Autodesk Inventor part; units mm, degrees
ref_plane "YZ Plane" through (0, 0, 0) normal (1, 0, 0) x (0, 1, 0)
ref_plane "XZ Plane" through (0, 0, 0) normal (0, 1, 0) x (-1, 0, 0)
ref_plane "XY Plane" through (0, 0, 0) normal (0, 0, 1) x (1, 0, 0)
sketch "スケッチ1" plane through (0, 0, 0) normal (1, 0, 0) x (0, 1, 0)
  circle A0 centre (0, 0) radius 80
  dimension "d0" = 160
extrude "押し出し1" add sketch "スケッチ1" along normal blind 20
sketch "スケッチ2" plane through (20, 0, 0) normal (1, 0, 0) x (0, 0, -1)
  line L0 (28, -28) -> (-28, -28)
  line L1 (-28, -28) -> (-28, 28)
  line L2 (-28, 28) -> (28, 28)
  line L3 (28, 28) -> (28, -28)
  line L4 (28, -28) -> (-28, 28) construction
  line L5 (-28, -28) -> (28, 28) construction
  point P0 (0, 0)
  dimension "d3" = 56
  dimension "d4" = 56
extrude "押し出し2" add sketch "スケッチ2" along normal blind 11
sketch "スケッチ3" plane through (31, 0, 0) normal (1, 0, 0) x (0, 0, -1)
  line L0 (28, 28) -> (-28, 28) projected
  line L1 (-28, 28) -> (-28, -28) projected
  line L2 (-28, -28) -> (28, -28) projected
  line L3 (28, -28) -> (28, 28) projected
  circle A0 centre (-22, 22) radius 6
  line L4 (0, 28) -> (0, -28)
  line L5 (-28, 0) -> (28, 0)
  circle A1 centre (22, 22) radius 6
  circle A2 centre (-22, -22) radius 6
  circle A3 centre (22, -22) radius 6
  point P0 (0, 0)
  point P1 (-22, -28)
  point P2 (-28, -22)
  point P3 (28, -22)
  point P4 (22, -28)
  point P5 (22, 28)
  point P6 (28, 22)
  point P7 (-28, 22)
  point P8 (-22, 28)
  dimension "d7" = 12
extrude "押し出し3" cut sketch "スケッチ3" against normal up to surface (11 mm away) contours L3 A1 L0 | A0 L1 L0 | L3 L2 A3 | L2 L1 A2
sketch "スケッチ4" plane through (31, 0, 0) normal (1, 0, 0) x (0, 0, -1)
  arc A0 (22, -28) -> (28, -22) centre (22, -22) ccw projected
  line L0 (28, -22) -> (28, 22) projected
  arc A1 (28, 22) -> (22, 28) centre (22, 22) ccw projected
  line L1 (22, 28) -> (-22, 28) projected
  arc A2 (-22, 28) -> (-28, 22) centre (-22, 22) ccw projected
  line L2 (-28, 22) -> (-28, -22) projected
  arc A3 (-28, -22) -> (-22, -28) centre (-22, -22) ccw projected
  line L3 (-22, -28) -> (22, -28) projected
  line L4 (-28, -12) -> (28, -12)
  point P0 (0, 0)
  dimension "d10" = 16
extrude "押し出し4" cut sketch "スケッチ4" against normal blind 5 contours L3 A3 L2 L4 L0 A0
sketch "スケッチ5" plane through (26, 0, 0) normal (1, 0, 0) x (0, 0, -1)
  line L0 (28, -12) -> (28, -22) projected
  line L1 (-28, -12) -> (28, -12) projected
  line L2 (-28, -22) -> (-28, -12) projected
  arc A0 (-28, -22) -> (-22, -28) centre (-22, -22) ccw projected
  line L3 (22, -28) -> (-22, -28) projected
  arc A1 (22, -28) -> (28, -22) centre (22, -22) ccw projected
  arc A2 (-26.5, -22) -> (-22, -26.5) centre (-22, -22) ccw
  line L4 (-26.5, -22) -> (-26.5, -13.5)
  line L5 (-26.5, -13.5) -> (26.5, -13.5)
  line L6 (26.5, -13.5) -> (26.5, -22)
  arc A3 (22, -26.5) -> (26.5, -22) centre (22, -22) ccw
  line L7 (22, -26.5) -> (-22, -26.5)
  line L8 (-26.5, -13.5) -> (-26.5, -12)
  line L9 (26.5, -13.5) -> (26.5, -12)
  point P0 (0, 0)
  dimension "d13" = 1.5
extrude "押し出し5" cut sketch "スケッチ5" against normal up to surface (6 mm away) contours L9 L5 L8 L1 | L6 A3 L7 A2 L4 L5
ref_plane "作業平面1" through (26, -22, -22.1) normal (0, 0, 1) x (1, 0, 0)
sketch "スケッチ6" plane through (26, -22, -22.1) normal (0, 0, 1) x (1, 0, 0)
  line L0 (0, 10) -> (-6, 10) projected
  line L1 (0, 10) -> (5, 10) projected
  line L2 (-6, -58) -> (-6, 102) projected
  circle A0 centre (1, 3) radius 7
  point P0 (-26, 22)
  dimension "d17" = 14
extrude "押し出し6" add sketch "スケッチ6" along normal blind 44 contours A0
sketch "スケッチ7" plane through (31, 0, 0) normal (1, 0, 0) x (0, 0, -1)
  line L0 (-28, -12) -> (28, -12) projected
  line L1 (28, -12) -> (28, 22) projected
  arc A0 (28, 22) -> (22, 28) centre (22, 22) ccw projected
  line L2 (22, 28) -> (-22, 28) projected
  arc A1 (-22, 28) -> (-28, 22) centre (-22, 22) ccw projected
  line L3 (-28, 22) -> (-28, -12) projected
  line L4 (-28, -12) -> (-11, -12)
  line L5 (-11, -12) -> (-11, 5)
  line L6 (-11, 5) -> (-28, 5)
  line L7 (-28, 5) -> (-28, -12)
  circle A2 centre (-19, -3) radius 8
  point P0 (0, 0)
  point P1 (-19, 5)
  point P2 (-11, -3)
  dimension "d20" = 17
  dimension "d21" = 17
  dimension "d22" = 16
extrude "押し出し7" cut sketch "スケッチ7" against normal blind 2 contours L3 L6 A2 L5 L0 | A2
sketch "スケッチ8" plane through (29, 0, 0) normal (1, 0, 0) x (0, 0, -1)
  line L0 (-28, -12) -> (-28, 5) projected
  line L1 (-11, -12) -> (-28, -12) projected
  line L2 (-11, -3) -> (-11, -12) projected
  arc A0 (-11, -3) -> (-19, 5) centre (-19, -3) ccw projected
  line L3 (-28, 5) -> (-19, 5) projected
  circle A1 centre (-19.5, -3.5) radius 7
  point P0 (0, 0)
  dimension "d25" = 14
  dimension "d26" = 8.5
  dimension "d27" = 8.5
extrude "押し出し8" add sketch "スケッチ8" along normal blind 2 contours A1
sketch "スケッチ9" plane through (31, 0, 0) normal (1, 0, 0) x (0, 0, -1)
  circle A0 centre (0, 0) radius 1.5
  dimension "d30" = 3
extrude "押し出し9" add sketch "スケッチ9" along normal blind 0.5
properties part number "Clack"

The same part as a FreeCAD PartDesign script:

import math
import FreeCAD as App
import Part
import Sketcher

V = App.Vector

doc = App.newDocument("Part")
body = doc.addObject("PartDesign::Body", "Body")
body.AllowCompound = True

# Sketch on YZ plane
sketch1 = body.newObject("Sketcher::SketchObject", "Sketch")
sketch1.AttachmentSupport = (doc.getObject("YZ_Plane"), [""])
sketch1.MapMode = "FlatFace"
sketch1.addGeometry(Part.Circle(V(0, 0, 0), V(0, 0, 1), 80), False)
sketch1.addConstraint([
    Sketcher.Constraint("Coincident", 0, 3, -1, 1),
    Sketcher.Constraint("Diameter", 0, 160.0),
])
pad1 = body.newObject("PartDesign::Pad", "Pad")
pad1.Profile = sketch1
pad1.Length = 20

# Sketch on YZ plane
sketch2 = body.newObject("Sketcher::SketchObject", "Sketch001")
sketch2.AttachmentSupport = (doc.getObject("YZ_Plane"), [""])
sketch2.MapMode = "FlatFace"
sketch2.AttachmentOffset = App.Placement(V(0, 0, 20), App.Rotation())
sketch2.addGeometry([
    Part.LineSegment(V(-28, 28, 0), V(-28, -28, 0)),
    Part.LineSegment(V(-28, -28, 0), V(28, -28, 0)),
    Part.LineSegment(V(28, -28, 0), V(28, 28, 0)),
    Part.LineSegment(V(28, 28, 0), V(-28, 28, 0)),
], False)
sketch2.addConstraint([
    Sketcher.Constraint("Coincident", 0, 2, 1, 1),
    Sketcher.Constraint("Coincident", 1, 2, 2, 1),
    Sketcher.Constraint("Coincident", 2, 2, 3, 1),
    Sketcher.Constraint("Coincident", 3, 2, 0, 1),
    Sketcher.Constraint("Vertical", 0),
    Sketcher.Constraint("Horizontal", 1),
    Sketcher.Constraint("Vertical", 2),
    Sketcher.Constraint("Horizontal", 3),
    Sketcher.Constraint("Symmetric", 0, 2, 2, 2, -1, 1),
    Sketcher.Constraint("Equal", 3, 0),
    Sketcher.Constraint("DistanceX", 1, 1, 1, 2, 56.0),
])
pad2 = body.newObject("PartDesign::Pad", "Pad001")
pad2.Profile = sketch2
pad2.Length = 11

# Sketch on YZ plane
sketch3 = body.newObject("Sketcher::SketchObject", "Sketch002")
sketch3.AttachmentSupport = (doc.getObject("YZ_Plane"), [""])
sketch3.MapMode = "FlatFace"
sketch3.AttachmentOffset = App.Placement(V(0, 0, 31), App.Rotation())
sketch3.addGeometry([
    Part.LineSegment(V(22, -28, 0), V(28, -28, 0)),  # 0
    Part.LineSegment(V(28, -28, 0), V(28, -22, 0)),  # 1
    Part.ArcOfCircle(Part.Circle(V(22, -22, 0), V(0, 0, 1), 6), math.radians(-90), math.radians(0)),  # 2
    Part.ArcOfCircle(Part.Circle(V(22, 22, 0), V(0, 0, 1), 6), math.radians(0), math.radians(90)),  # 3
    Part.LineSegment(V(28, 22, 0), V(28, 28, 0)),  # 4
    Part.LineSegment(V(28, 28, 0), V(22, 28, 0)),  # 5
    Part.LineSegment(V(-28, -28, 0), V(-22, -28, 0)),  # 6
    Part.ArcOfCircle(Part.Circle(V(-22, -22, 0), V(0, 0, 1), 6), math.radians(180), math.radians(270)),  # 7
    Part.LineSegment(V(-28, -22, 0), V(-28, -28, 0)),  # 8
    Part.LineSegment(V(-28, 28, 0), V(-28, 22, 0)),  # 9
    Part.ArcOfCircle(Part.Circle(V(-22, 22, 0), V(0, 0, 1), 6), math.radians(90), math.radians(180)),  # 10
    Part.LineSegment(V(-22, 28, 0), V(-28, 28, 0)),  # 11
], False)
sketch3.addConstraint([
    Sketcher.Constraint("Coincident", 0, 2, 1, 1),
    Sketcher.Constraint("Tangent", 1, 2, 2, 2),
    Sketcher.Constraint("Tangent", 2, 1, 0, 1),
    Sketcher.Constraint("Tangent", 3, 1, 4, 1),
    Sketcher.Constraint("Coincident", 4, 2, 5, 1),
    Sketcher.Constraint("Tangent", 5, 2, 3, 2),
    Sketcher.Constraint("Tangent", 6, 2, 7, 2),
    Sketcher.Constraint("Tangent", 7, 1, 8, 1),
    Sketcher.Constraint("Coincident", 8, 2, 6, 1),
    Sketcher.Constraint("Tangent", 9, 2, 10, 2),
    Sketcher.Constraint("Tangent", 10, 1, 11, 1),
    Sketcher.Constraint("Coincident", 11, 2, 9, 1),
    Sketcher.Constraint("Horizontal", 0),
    Sketcher.Constraint("Vertical", 1),
    Sketcher.Constraint("Vertical", 4),
    Sketcher.Constraint("Horizontal", 5),
    Sketcher.Constraint("Horizontal", 6),
    Sketcher.Constraint("Vertical", 8),
    Sketcher.Constraint("Vertical", 9),
    Sketcher.Constraint("Horizontal", 11),
    Sketcher.Constraint("Equal", 2, 3),
    Sketcher.Constraint("Equal", 3, 7),
    Sketcher.Constraint("Equal", 7, 10),
    Sketcher.Constraint("Symmetric", 3, 3, 7, 3, -1, 1),
    Sketcher.Constraint("Symmetric", 2, 3, 10, 3, -1, 1),
    Sketcher.Constraint("Symmetric", 2, 3, 7, 3, -2),
    Sketcher.Constraint("Radius", 2, 6.0),
    Sketcher.Constraint("DistanceX", -1, 1, 2, 3, 22.0),
    Sketcher.Constraint("DistanceY", 2, 3, -1, 1, 22.0),
])
pocket1 = body.newObject("PartDesign::Pocket", "Pocket")
pocket1.Profile = sketch3
pocket1.Length = 11

# Sketch on YZ plane
sketch4 = body.newObject("Sketcher::SketchObject", "Sketch003")
sketch4.AttachmentSupport = (doc.getObject("YZ_Plane"), [""])
sketch4.MapMode = "FlatFace"
sketch4.AttachmentOffset = App.Placement(V(0, 0, 31), App.Rotation())
sketch4.addGeometry([
    Part.LineSegment(V(-28, 22, 0), V(-28, -22, 0)),  # 0
    Part.ArcOfCircle(Part.Circle(V(-22, -22, 0), V(0, 0, 1), 6), math.radians(180), math.radians(270)),  # 1
    Part.LineSegment(V(-22, -28, 0), V(-12, -28, 0)),  # 2
    Part.LineSegment(V(-12, -28, 0), V(-12, 28, 0)),  # 3
    Part.LineSegment(V(-12, 28, 0), V(-22, 28, 0)),  # 4
    Part.ArcOfCircle(Part.Circle(V(-22, 22, 0), V(0, 0, 1), 6), math.radians(90), math.radians(180)),  # 5
], False)
sketch4.addConstraint([
    Sketcher.Constraint("Tangent", 0, 2, 1, 1),
    Sketcher.Constraint("Tangent", 1, 2, 2, 1),
    Sketcher.Constraint("Coincident", 2, 2, 3, 1),
    Sketcher.Constraint("Coincident", 3, 2, 4, 1),
    Sketcher.Constraint("Tangent", 4, 2, 5, 1),
    Sketcher.Constraint("Tangent", 5, 2, 0, 1),
    Sketcher.Constraint("Vertical", 0),
    Sketcher.Constraint("Horizontal", 2),
    Sketcher.Constraint("Vertical", 3),
    Sketcher.Constraint("Horizontal", 4),
    Sketcher.Constraint("Equal", 1, 5),
    Sketcher.Constraint("Radius", 1, 6.0),
    Sketcher.Constraint("DistanceX", 0, 2, 2, 2, 16.0),
    Sketcher.Constraint("DistanceY", 0, 2, 0, 1, 44.0),
    Sketcher.Constraint("DistanceX", 1, 3, -1, 1, 22.0),
    Sketcher.Constraint("DistanceY", 1, 3, -1, 1, 22.0),
])
pocket2 = body.newObject("PartDesign::Pocket", "Pocket001")
pocket2.Profile = sketch4
pocket2.Length = 5

# Sketch on YZ plane
sketch5 = body.newObject("Sketcher::SketchObject", "Sketch004")
sketch5.AttachmentSupport = (doc.getObject("YZ_Plane"), [""])
sketch5.MapMode = "FlatFace"
sketch5.AttachmentOffset = App.Placement(V(0, 0, 26), App.Rotation())
sketch5.addGeometry([
    Part.LineSegment(V(-12, -26.5, 0), V(-12, 26.5, 0)),  # 0
    Part.LineSegment(V(-12, 26.5, 0), V(-22, 26.5, 0)),  # 1
    Part.ArcOfCircle(Part.Circle(V(-22, 22, 0), V(0, 0, 1), 4.5), math.radians(90), math.radians(180)),  # 2
    Part.LineSegment(V(-26.5, 22, 0), V(-26.5, -22, 0)),  # 3
    Part.ArcOfCircle(Part.Circle(V(-22, -22, 0), V(0, 0, 1), 4.5), math.radians(180), math.radians(270)),  # 4
    Part.LineSegment(V(-22, -26.5, 0), V(-12, -26.5, 0)),  # 5
], False)
sketch5.addConstraint([
    Sketcher.Constraint("Coincident", 0, 2, 1, 1),
    Sketcher.Constraint("Tangent", 1, 2, 2, 1),
    Sketcher.Constraint("Tangent", 2, 2, 3, 1),
    Sketcher.Constraint("Tangent", 3, 2, 4, 1),
    Sketcher.Constraint("Tangent", 4, 2, 5, 1),
    Sketcher.Constraint("Coincident", 5, 2, 0, 1),
    Sketcher.Constraint("Vertical", 0),
    Sketcher.Constraint("Horizontal", 1),
    Sketcher.Constraint("Vertical", 3),
    Sketcher.Constraint("Horizontal", 5),
    Sketcher.Constraint("Equal", 2, 4),
    Sketcher.Constraint("Radius", 2, 4.5),
    Sketcher.Constraint("DistanceX", 1, 2, 1, 1, 10.0),
    Sketcher.Constraint("DistanceY", 0, 1, 0, 2, 53.0),
    Sketcher.Constraint("DistanceX", 2, 3, -1, 1, 22.0),
    Sketcher.Constraint("DistanceY", -1, 1, 2, 3, 22.0),
])
pocket3 = body.newObject("PartDesign::Pocket", "Pocket002")
pocket3.Profile = sketch5
pocket3.Length = 6

# Sketch on XY plane
sketch6 = body.newObject("Sketcher::SketchObject", "Sketch005")
sketch6.AttachmentSupport = (doc.getObject("XY_Plane"), [""])
sketch6.MapMode = "FlatFace"
sketch6.AttachmentOffset = App.Placement(V(0, 0, -22.1), App.Rotation())
sketch6.addGeometry(Part.Circle(V(27, -19, 0), V(0, 0, 1), 7), False)
sketch6.addConstraint([
    Sketcher.Constraint("Diameter", 0, 14.0),
    Sketcher.Constraint("DistanceX", -1, 1, 0, 3, 27.0),
    Sketcher.Constraint("DistanceY", 0, 3, -1, 1, 19.0),
])
pad3 = body.newObject("PartDesign::Pad", "Pad002")
pad3.Profile = sketch6
pad3.Length = 44

# Sketch on YZ plane
sketch7 = body.newObject("Sketcher::SketchObject", "Sketch006")
sketch7.AttachmentSupport = (doc.getObject("YZ_Plane"), [""])
sketch7.MapMode = "FlatFace"
sketch7.AttachmentOffset = App.Placement(V(0, 0, 31), App.Rotation())
sketch7.addGeometry([
    Part.LineSegment(V(5, 28, 0), V(-12, 28, 0)),  # 0
    Part.LineSegment(V(-12, 28, 0), V(-12, 11, 0)),  # 1
    Part.LineSegment(V(-12, 11, 0), V(-3, 11, 0)),  # 2
    Part.ArcOfCircle(Part.Circle(V(-3, 19, 0), V(0, 0, 1), 8), math.radians(-90), math.radians(0)),  # 3
    Part.LineSegment(V(5, 19, 0), V(5, 28, 0)),  # 4
], False)
sketch7.addConstraint([
    Sketcher.Constraint("Coincident", 0, 2, 1, 1),
    Sketcher.Constraint("Coincident", 1, 2, 2, 1),
    Sketcher.Constraint("Tangent", 2, 2, 3, 1),
    Sketcher.Constraint("Tangent", 3, 2, 4, 1),
    Sketcher.Constraint("Coincident", 4, 2, 0, 1),
    Sketcher.Constraint("Horizontal", 0),
    Sketcher.Constraint("Vertical", 1),
    Sketcher.Constraint("Horizontal", 2),
    Sketcher.Constraint("Vertical", 4),
    Sketcher.Constraint("Equal", 0, 1),
    Sketcher.Constraint("Radius", 3, 8.0),
    Sketcher.Constraint("DistanceX", 0, 2, 0, 1, 17.0),
    Sketcher.Constraint("DistanceX", 3, 3, -1, 1, 3.0),
    Sketcher.Constraint("DistanceY", -1, 1, 3, 3, 19.0),
])
pocket4 = body.newObject("PartDesign::Pocket", "Pocket003")
pocket4.Profile = sketch7
pocket4.Length = 2

# Sketch on YZ plane
sketch8 = body.newObject("Sketcher::SketchObject", "Sketch007")
sketch8.AttachmentSupport = (doc.getObject("YZ_Plane"), [""])
sketch8.MapMode = "FlatFace"
sketch8.AttachmentOffset = App.Placement(V(0, 0, 29), App.Rotation())
sketch8.addGeometry(Part.Circle(V(-4, 20, 0), V(0, 0, 1), 7), False)
sketch8.addConstraint([
    Sketcher.Constraint("Diameter", 0, 14.0),
    Sketcher.Constraint("DistanceX", 0, 3, -1, 1, 3.5),
    Sketcher.Constraint("DistanceY", -1, 1, 0, 3, 19.5),
])
pad4 = body.newObject("PartDesign::Pad", "Pad003")
pad4.Profile = sketch8
pad4.Length = 2

# Sketch on YZ plane
sketch9 = body.newObject("Sketcher::SketchObject", "Sketch008")
sketch9.AttachmentSupport = (doc.getObject("YZ_Plane"), [""])
sketch9.MapMode = "FlatFace"
sketch9.AttachmentOffset = App.Placement(V(0, 0, 31), App.Rotation())
sketch9.addGeometry(Part.Circle(V(0, 0, 0), V(0, 0, 1), 1.5), False)
sketch9.addConstraint([
    Sketcher.Constraint("Coincident", 0, 3, -1, 1),
    Sketcher.Constraint("Diameter", 0, 3.0),
])
pad5 = body.newObject("PartDesign::Pad", "Pad004")
pad5.Profile = sketch9
pad5.Length = 0.5

doc.recompute()
